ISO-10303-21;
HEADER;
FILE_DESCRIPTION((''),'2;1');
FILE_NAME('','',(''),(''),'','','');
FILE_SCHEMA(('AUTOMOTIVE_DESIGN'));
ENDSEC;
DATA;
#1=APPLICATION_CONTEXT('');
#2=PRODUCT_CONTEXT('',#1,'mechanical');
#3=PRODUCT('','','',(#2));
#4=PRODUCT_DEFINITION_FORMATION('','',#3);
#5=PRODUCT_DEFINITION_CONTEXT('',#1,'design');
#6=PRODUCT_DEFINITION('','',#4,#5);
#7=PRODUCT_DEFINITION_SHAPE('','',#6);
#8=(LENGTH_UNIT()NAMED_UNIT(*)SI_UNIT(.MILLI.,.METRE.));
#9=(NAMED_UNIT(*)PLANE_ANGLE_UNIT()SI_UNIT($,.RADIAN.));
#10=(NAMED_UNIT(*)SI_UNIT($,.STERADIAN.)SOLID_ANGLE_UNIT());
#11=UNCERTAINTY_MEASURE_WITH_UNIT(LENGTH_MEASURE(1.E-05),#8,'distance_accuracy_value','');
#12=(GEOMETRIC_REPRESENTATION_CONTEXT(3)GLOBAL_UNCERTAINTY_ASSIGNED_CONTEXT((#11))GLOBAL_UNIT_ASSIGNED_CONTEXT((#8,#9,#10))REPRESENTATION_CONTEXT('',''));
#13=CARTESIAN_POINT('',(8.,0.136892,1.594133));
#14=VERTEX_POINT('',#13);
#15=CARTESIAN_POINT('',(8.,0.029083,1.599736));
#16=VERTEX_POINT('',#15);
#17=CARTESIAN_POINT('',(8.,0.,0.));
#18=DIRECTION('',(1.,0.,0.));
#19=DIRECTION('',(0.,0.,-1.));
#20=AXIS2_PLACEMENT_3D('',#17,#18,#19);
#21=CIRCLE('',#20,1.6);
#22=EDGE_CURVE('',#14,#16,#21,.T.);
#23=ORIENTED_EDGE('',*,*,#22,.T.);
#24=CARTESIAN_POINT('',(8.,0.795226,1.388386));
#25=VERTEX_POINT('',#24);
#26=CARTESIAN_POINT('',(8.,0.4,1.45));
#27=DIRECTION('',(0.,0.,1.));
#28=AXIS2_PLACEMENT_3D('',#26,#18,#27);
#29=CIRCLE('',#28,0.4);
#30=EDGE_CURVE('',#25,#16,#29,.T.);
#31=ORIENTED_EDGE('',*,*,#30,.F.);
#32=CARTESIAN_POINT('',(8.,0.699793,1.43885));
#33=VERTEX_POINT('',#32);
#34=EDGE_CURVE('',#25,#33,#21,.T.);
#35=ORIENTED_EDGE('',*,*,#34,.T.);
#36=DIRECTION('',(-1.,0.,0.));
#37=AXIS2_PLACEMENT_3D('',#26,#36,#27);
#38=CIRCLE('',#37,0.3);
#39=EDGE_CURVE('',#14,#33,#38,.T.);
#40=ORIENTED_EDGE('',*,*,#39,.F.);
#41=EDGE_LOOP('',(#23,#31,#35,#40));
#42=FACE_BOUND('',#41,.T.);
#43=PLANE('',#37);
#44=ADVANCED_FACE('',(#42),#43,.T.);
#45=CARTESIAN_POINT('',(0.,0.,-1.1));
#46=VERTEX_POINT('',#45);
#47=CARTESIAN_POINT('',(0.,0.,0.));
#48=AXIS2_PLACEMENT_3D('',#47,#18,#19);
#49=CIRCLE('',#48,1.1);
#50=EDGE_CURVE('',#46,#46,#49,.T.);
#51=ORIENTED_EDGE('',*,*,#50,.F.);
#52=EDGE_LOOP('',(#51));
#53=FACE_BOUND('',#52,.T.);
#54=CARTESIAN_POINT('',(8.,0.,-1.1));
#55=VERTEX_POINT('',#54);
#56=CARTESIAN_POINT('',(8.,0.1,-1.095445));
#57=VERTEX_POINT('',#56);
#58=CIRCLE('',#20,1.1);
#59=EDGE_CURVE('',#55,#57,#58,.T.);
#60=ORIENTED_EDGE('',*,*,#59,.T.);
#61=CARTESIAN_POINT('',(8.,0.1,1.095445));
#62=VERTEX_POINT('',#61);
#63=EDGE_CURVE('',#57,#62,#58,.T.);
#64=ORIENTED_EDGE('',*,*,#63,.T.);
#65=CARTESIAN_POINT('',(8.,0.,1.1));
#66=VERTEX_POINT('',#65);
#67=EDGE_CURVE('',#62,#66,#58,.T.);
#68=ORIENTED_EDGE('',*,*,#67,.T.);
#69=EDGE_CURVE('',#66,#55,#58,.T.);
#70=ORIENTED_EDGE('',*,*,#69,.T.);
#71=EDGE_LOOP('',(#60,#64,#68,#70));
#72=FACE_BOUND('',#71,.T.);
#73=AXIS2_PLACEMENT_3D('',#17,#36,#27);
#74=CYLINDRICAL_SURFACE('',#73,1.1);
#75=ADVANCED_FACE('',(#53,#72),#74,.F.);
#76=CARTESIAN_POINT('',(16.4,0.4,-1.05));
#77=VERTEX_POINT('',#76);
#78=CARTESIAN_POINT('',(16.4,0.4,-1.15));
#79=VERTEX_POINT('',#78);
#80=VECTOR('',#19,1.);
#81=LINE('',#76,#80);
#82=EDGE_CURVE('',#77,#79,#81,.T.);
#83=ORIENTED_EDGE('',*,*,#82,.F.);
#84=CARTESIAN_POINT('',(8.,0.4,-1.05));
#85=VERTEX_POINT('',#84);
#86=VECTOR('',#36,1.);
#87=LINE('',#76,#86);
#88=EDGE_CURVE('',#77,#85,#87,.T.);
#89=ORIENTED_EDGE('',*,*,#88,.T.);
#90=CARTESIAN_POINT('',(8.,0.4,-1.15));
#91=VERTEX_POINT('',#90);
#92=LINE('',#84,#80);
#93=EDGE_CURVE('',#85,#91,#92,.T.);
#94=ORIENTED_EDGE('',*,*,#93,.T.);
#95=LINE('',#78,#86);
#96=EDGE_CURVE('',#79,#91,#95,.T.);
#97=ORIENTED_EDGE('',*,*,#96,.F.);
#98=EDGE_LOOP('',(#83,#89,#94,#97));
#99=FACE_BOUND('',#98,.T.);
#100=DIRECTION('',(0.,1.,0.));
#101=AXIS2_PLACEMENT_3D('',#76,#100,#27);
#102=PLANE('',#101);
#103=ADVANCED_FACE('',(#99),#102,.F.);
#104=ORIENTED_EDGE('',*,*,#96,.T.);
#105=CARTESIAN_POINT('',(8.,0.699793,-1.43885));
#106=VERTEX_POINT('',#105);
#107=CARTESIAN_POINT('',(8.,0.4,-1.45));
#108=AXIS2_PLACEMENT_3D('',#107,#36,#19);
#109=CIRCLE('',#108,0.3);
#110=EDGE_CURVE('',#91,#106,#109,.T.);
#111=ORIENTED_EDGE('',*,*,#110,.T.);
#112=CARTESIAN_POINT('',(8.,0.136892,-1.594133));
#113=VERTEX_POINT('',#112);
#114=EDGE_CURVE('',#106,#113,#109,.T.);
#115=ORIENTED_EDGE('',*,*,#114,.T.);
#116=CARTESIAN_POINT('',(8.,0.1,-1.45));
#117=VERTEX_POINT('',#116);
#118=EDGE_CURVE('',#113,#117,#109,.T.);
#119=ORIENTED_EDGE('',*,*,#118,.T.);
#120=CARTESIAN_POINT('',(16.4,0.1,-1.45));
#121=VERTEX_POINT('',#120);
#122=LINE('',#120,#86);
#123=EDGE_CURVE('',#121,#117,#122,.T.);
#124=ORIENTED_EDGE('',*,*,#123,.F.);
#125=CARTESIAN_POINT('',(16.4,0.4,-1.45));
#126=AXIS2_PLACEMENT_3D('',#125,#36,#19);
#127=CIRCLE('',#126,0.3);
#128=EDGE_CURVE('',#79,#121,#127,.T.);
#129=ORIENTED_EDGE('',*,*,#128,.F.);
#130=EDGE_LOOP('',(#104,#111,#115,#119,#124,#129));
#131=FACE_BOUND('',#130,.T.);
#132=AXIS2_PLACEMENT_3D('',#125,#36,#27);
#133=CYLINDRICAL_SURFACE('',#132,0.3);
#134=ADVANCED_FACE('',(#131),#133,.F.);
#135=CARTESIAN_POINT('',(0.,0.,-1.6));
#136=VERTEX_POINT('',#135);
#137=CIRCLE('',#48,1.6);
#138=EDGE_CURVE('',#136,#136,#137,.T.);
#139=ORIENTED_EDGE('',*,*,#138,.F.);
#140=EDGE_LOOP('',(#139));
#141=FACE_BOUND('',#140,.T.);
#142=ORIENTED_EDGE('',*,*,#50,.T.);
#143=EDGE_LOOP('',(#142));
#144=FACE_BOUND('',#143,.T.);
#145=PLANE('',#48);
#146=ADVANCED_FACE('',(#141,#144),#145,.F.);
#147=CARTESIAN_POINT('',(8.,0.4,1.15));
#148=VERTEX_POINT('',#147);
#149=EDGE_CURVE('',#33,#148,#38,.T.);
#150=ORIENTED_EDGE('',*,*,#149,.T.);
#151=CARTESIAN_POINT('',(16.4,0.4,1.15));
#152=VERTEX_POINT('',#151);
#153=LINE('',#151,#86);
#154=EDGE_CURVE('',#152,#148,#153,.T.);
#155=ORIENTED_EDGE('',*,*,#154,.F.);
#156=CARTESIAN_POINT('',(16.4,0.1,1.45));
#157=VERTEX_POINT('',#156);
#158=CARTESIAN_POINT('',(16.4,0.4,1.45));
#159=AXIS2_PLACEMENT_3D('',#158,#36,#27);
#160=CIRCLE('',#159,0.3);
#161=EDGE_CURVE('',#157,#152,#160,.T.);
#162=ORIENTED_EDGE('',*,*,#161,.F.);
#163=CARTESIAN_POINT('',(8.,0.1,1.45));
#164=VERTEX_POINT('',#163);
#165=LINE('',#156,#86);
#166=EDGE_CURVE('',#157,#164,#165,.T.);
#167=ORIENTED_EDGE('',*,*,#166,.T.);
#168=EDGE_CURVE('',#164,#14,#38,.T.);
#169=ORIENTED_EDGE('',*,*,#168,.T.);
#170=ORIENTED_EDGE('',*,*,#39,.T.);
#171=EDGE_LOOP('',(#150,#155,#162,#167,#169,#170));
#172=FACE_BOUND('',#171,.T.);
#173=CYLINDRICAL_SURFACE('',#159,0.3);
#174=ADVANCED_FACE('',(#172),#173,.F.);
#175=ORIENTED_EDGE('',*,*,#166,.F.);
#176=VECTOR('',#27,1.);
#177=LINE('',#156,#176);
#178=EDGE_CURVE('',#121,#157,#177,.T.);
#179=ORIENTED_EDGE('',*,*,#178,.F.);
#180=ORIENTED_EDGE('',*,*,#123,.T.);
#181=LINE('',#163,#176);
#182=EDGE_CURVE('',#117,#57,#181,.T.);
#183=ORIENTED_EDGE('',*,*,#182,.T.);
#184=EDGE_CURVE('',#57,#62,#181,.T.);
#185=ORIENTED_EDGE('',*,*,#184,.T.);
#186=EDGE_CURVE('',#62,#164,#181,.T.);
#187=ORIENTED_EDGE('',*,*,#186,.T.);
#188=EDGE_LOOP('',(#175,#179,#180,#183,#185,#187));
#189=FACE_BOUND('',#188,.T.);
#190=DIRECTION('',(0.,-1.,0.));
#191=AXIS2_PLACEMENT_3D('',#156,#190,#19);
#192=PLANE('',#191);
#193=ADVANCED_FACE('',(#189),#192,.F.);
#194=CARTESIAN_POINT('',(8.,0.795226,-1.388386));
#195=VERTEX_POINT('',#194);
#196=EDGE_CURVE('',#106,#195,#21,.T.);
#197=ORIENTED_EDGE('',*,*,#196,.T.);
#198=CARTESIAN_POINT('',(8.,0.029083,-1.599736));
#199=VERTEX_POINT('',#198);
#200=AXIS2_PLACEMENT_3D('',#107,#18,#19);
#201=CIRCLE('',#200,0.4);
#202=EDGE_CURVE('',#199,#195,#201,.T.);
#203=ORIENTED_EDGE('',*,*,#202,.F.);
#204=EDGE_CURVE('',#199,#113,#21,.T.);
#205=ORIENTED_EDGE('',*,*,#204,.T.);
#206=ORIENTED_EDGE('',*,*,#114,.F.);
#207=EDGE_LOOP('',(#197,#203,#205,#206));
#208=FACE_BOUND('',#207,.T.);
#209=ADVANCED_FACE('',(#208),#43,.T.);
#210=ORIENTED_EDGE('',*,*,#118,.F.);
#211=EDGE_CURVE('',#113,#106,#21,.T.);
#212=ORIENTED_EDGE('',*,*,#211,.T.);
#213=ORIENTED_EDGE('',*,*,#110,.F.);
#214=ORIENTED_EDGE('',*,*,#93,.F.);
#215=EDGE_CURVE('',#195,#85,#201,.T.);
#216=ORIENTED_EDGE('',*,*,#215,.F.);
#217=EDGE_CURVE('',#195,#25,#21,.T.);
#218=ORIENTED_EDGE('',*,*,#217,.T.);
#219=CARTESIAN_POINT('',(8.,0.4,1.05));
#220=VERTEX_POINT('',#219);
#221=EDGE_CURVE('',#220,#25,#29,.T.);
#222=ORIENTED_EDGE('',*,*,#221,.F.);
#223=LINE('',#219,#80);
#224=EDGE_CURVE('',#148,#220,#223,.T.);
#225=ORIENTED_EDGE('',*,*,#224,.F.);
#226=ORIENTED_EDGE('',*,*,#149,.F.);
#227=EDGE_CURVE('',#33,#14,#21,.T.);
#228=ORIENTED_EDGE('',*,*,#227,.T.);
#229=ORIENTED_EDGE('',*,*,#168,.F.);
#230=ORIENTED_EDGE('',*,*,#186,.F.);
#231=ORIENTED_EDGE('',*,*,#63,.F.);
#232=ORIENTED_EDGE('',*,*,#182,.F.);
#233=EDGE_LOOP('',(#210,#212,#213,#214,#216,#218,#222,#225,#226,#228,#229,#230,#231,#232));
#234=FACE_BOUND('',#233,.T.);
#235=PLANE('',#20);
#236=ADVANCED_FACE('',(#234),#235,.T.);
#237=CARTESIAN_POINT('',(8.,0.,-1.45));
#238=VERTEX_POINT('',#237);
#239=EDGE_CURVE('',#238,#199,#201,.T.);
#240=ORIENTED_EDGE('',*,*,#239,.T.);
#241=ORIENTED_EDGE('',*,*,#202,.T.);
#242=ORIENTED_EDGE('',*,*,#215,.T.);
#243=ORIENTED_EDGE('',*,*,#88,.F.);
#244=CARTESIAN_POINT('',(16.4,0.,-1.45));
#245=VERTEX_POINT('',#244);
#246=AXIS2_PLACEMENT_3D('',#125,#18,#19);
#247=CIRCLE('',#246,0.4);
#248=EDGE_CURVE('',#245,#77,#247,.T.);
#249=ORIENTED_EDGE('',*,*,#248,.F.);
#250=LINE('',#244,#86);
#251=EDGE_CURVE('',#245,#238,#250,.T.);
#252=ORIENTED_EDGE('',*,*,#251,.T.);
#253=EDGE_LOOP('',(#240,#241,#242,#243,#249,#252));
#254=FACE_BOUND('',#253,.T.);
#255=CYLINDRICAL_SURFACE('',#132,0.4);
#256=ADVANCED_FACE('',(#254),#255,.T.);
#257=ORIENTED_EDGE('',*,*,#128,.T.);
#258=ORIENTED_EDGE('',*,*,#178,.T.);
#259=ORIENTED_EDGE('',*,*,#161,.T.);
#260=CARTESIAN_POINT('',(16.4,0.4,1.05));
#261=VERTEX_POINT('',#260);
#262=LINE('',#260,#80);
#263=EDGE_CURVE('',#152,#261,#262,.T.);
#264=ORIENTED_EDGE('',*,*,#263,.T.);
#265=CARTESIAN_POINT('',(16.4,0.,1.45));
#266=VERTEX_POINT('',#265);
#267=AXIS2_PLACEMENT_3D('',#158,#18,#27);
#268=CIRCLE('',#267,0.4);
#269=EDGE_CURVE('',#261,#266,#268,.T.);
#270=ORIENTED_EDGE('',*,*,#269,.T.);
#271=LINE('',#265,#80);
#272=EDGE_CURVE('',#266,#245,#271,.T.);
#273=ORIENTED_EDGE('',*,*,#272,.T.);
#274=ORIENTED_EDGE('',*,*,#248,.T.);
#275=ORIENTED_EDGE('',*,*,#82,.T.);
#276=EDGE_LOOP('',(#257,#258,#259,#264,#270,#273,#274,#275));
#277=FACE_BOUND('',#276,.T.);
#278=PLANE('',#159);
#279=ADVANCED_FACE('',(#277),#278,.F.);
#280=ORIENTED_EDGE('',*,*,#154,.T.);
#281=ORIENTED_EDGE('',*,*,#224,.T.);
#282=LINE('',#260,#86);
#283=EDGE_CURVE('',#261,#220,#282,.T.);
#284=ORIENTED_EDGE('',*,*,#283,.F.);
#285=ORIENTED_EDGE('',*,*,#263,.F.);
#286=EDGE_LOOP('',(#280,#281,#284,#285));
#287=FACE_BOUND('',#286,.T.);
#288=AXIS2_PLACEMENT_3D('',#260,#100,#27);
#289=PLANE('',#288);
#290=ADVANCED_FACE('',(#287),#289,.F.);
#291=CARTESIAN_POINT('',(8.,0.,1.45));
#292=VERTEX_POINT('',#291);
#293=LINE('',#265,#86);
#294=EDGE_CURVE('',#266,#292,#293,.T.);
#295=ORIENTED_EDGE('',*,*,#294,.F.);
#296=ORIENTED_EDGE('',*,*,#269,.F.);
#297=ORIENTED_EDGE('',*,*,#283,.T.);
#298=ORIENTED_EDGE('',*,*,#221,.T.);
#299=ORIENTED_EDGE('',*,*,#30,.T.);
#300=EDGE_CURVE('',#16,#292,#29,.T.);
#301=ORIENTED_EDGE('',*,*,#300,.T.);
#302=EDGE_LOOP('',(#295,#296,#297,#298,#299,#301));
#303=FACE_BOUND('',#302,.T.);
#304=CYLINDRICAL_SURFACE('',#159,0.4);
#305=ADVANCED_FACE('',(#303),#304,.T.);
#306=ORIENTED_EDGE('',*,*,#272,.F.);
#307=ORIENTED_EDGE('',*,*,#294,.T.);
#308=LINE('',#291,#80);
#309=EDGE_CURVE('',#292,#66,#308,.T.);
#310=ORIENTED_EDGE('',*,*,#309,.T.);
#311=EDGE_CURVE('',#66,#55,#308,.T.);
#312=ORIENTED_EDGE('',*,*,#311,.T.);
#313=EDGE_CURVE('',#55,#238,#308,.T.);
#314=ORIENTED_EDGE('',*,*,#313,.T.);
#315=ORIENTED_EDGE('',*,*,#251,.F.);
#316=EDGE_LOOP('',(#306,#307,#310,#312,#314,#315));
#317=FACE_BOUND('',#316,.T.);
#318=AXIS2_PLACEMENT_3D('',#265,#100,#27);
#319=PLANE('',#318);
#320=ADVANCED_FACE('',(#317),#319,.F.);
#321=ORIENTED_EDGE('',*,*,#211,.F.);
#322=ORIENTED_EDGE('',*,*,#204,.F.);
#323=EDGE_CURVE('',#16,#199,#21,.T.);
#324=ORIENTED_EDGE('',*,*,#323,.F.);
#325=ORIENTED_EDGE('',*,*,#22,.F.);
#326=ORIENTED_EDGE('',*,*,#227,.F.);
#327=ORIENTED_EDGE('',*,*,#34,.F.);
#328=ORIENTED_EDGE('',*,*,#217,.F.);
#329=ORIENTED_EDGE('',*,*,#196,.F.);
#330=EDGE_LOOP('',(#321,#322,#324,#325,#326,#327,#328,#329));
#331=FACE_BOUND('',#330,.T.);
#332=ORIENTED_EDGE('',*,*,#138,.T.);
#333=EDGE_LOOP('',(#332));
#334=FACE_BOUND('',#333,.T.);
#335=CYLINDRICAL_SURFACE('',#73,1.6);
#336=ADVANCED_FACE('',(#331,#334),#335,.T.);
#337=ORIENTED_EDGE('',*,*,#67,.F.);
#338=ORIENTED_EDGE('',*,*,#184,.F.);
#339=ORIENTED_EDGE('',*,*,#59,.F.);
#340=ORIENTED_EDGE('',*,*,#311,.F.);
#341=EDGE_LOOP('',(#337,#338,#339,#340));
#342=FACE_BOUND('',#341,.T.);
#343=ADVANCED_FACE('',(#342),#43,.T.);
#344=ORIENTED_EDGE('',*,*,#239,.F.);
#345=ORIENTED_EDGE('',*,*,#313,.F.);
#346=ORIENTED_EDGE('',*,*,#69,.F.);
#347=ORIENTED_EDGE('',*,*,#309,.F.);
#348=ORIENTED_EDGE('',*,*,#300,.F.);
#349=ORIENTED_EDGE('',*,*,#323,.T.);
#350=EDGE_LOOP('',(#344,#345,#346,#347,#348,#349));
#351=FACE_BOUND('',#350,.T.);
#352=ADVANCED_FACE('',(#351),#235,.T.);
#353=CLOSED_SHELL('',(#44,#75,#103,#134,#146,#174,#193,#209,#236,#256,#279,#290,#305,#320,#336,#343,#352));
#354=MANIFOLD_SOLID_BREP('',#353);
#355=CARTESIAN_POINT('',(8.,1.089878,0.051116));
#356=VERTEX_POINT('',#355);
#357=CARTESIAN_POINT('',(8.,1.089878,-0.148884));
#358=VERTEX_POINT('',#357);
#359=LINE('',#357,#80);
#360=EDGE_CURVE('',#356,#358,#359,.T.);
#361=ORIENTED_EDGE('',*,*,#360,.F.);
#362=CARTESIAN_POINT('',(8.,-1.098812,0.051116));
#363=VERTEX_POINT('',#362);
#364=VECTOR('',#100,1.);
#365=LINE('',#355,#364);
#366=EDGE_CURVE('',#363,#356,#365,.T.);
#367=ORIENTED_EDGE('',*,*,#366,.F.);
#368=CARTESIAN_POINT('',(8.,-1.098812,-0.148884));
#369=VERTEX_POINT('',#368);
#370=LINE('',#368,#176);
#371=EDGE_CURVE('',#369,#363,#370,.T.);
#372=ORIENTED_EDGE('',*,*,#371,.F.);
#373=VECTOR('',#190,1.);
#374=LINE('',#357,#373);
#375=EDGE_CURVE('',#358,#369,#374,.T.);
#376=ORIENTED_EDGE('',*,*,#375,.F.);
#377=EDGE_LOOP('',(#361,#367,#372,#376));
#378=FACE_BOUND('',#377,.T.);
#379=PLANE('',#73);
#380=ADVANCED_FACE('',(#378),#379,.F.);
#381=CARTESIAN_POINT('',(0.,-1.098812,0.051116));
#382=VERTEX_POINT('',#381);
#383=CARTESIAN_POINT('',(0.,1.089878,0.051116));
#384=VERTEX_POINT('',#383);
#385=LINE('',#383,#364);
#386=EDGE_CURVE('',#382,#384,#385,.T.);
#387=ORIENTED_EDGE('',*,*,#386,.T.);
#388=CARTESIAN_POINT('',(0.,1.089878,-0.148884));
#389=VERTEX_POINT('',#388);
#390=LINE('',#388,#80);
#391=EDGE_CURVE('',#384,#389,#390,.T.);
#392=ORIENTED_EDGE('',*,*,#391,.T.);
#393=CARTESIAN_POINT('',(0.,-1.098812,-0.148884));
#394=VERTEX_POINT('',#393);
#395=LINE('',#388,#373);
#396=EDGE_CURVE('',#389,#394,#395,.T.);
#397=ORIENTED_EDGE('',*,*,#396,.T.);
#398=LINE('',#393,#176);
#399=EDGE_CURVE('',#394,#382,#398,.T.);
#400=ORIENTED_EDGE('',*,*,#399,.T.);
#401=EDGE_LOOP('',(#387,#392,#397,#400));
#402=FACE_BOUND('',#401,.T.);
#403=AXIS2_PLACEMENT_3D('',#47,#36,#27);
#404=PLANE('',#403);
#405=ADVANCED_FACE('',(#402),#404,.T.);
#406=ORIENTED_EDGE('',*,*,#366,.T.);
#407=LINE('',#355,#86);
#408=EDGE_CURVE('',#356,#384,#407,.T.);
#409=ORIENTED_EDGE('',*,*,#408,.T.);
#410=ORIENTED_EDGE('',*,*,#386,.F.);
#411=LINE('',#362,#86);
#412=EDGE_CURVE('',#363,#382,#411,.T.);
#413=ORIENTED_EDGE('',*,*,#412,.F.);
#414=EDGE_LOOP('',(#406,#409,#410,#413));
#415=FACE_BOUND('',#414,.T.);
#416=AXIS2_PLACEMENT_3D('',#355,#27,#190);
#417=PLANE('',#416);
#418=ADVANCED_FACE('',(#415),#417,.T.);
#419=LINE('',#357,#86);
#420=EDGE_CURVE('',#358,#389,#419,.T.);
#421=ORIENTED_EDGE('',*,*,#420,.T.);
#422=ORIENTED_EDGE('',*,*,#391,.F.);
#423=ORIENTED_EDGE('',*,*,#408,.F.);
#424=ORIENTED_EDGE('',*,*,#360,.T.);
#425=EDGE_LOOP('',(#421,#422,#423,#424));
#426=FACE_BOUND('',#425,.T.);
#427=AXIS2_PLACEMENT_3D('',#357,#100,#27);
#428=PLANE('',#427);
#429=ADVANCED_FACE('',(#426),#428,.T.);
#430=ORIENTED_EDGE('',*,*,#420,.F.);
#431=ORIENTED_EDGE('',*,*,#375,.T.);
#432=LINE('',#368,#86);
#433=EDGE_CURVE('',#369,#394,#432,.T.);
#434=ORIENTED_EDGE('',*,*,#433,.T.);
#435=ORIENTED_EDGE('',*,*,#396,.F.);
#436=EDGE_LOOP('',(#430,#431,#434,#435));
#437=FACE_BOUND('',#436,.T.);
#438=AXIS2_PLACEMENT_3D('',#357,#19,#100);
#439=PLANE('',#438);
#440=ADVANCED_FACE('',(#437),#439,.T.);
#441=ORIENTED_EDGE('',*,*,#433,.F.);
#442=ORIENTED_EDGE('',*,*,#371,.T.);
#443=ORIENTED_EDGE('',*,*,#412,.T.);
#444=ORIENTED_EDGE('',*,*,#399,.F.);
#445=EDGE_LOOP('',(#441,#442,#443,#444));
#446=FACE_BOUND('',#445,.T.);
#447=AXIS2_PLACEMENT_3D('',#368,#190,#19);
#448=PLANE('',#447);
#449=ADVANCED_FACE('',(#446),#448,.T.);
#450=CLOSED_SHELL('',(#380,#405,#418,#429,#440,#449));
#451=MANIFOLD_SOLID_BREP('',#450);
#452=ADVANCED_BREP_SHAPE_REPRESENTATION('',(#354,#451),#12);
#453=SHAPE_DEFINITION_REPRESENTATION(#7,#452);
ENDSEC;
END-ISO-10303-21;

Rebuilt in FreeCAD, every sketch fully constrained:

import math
import FreeCAD as App
import Part
import Sketcher
from FreeCAD import Vector
Q = App.Units.Quantity

doc = App.newDocument("Part")
body = doc.addObject("PartDesign::Body", "Body")

# Sketch on YZ plane
sketch1 = body.newObject("Sketcher::SketchObject", "Sketch")
sketch1.AttachmentSupport = (doc.getObject("YZ_Plane"), [""])
sketch1.MapMode = "FlatFace"
sketch1.addGeometry(Part.Circle(Vector(0, 0, 0), Vector(0, 0, 1), 1.6), False)
sketch1.addGeometry(Part.Circle(Vector(0, 0, 0), Vector(0, 0, 1), 1.1), False)
sketch1.addConstraint(Sketcher.Constraint("Coincident", 0, 3, -1, 1))
sketch1.addConstraint(Sketcher.Constraint("Coincident", 1, 3, -1, 1))
sketch1.addConstraint(Sketcher.Constraint("Diameter", 0, Q("3.2 mm")))
sketch1.addConstraint(Sketcher.Constraint("Diameter", 1, Q("2.2 mm")))
pad1 = body.newObject("PartDesign::Pad", "Pad")
pad1.Profile = sketch1
pad1.Length = 8

# Sketch on YZ plane
sketch2 = body.newObject("Sketcher::SketchObject", "Sketch001")
sketch2.AttachmentSupport = (doc.getObject("YZ_Plane"), [""])
sketch2.MapMode = "FlatFace"
sketch2.AttachmentOffset = App.Placement(Vector(0, 0, 8), App.Rotation())
sketch2.addGeometry(Part.LineSegment(Vector(0, 1.45, 0), Vector(0, -1.45, 0)), False)
sketch2.addGeometry(Part.ArcOfCircle(Part.Circle(Vector(0.4, -1.45, 0), Vector(0, 0, 1), 0.4), math.radians(180), math.radians(450)), False)
sketch2.addGeometry(Part.LineSegment(Vector(0.4, -1.05, 0), Vector(0.4, -1.15, 0)), False)
sketch2.addGeometry(Part.ArcOfCircle(Part.Circle(Vector(0.4, -1.45, 0), Vector(0, 0, 1), 0.3), math.radians(180), math.radians(450)), False)
sketch2.addGeometry(Part.LineSegment(Vector(0.1, -1.45, 0), Vector(0.1, 1.45, 0)), False)
sketch2.addGeometry(Part.ArcOfCircle(Part.Circle(Vector(0.4, 1.45, 0), Vector(0, 0, 1), 0.3), math.radians(-90), math.radians(180)), False)
sketch2.addGeometry(Part.LineSegment(Vector(0.4, 1.15, 0), Vector(0.4, 1.05, 0)), False)
sketch2.addGeometry(Part.ArcOfCircle(Part.Circle(Vector(0.4, 1.45, 0), Vector(0, 0, 1), 0.4), math.radians(-90), math.radians(180)), False)
sketch2.addConstraint(Sketcher.Constraint("Tangent", 0, 2, 1, 1))
sketch2.addConstraint(Sketcher.Constraint("Coincident", 1, 2, 2, 1))
sketch2.addConstraint(Sketcher.Constraint("Coincident", 2, 2, 3, 2))
sketch2.addConstraint(Sketcher.Constraint("Tangent", 3, 1, 4, 1))
sketch2.addConstraint(Sketcher.Constraint("Tangent", 4, 2, 5, 2))
sketch2.addConstraint(Sketcher.Constraint("Coincident", 5, 1, 6, 1))
sketch2.addConstraint(Sketcher.Constraint("Coincident", 6, 2, 7, 1))
sketch2.addConstraint(Sketcher.Constraint("Tangent", 7, 2, 0, 1))
sketch2.addConstraint(Sketcher.Constraint("Vertical", 0))
sketch2.addConstraint(Sketcher.Constraint("Vertical", 2))
sketch2.addConstraint(Sketcher.Constraint("Vertical", 4))
sketch2.addConstraint(Sketcher.Constraint("Vertical", 6))
sketch2.addConstraint(Sketcher.Constraint("Coincident", 3, 3, 1, 3))
sketch2.addConstraint(Sketcher.Constraint("Coincident", 7, 3, 5, 3))
sketch2.addConstraint(Sketcher.Constraint("Equal", 3, 5))
sketch2.addConstraint(Sketcher.Constraint("Symmetric", 0, 2, 7, 2, -1, 1))
sketch2.addConstraint(Sketcher.Constraint("Vertical", 7, 3, 1, 2))
sketch2.addConstraint(Sketcher.Constraint("Vertical", 2, 2, 5, 1))
sketch2.addConstraint(Sketcher.Constraint("Radius", 1, Q("0.4 mm")))
sketch2.addConstraint(Sketcher.Constraint("Radius", 3, Q("0.3 mm")))
sketch2.addConstraint(Sketcher.Constraint("DistanceY", 0, 2, 0, 1, Q("2.9 mm")))
pad2 = body.newObject("PartDesign::Pad", "Pad001")
pad2.Profile = sketch2
pad2.Length = 8.4
body2 = doc.addObject("PartDesign::Body", "Body001")

# Sketch on YZ plane
sketch3 = body2.newObject("Sketcher::SketchObject", "Sketch002")
sketch3.AttachmentSupport = (doc.getObject("YZ_Plane001"), [""])
sketch3.MapMode = "FlatFace"
sketch3.addGeometry(Part.LineSegment(Vector(1.09, -0.15, 0), Vector(-1.1, -0.15, 0)), False)
sketch3.addGeometry(Part.LineSegment(Vector(-1.1, -0.15, 0), Vector(-1.1, 0.05, 0)), False)
sketch3.addGeometry(Part.LineSegment(Vector(-1.1, 0.05, 0), Vector(1.09, 0.05, 0)), False)
sketch3.addGeometry(Part.LineSegment(Vector(1.09, 0.05, 0), Vector(1.09, -0.15, 0)), False)
sketch3.addConstraint(Sketcher.Constraint("Coincident", 0, 2, 1, 1))
sketch3.addConstraint(Sketcher.Constraint("Coincident", 1, 2, 2, 1))
sketch3.addConstraint(Sketcher.Constraint("Coincident", 2, 2, 3, 1))
sketch3.addConstraint(Sketcher.Constraint("Coincident", 3, 2, 0, 1))
sketch3.addConstraint(Sketcher.Constraint("Horizontal", 0))
sketch3.addConstraint(Sketcher.Constraint("Vertical", 1))
sketch3.addConstraint(Sketcher.Constraint("Horizontal", 2))
sketch3.addConstraint(Sketcher.Constraint("Vertical", 3))
sketch3.addConstraint(Sketcher.Constraint("DistanceY", 1, 1, 1, 2, Q("0.2 mm")))
sketch3.addConstraint(Sketcher.Constraint("DistanceX", 0, 2, 0, 1, Q("2.18869 mm")))
sketch3.addConstraint(Sketcher.Constraint("DistanceX", 0, 2, -1, 1, Q("1.098812 mm")))
sketch3.addConstraint(Sketcher.Constraint("DistanceY", 0, 2, -1, 1, Q("0.148884 mm")))
pad3 = body2.newObject("PartDesign::Pad", "Pad002")
pad3.Profile = sketch3
pad3.Length = 8

doc.recompute()
